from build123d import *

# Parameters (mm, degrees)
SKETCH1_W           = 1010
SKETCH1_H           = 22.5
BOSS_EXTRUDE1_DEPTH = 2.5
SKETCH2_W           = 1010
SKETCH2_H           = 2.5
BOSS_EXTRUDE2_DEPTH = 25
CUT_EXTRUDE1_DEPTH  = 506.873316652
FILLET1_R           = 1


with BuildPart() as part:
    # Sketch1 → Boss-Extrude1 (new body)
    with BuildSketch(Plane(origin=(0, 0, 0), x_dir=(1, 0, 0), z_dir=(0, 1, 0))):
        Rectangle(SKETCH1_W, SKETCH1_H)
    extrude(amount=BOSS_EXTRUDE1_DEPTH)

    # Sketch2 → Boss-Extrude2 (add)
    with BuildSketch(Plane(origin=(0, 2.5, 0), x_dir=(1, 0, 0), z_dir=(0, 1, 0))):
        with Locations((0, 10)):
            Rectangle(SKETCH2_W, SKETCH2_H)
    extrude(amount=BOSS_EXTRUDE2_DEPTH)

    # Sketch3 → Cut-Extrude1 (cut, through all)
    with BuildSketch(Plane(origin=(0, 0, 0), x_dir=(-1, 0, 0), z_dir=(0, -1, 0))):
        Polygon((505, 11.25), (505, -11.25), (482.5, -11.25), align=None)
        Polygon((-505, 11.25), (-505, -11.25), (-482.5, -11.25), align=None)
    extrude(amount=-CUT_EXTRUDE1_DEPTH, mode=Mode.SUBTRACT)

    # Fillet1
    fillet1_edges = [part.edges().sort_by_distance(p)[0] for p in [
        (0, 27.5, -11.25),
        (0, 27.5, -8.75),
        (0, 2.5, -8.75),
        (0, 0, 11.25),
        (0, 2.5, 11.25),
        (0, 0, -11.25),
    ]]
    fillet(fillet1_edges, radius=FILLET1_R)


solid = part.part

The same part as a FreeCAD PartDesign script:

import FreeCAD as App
import Part
import Sketcher
from FreeCAD import Vector


def edges_at(feature, points):
    """Names of the edges that pass closest to the given points."""
    edges = feature.Shape.Edges
    near = lambda p: min(range(len(edges)), key=lambda i: edges[i].distToShape(Part.Vertex(*p))[0])
    return sorted({f"Edge{near(p) + 1}" for p in points})

doc = App.newDocument("Part")
body = doc.addObject("PartDesign::Body", "Body")

sketch1 = doc.addObject("Sketcher::SketchObject", "Sketch")
body.addObject(sketch1)
sketch1.AttachmentSupport = (doc.XZ_Plane, [""])
sketch1.MapMode = "FlatFace"
sketch1.addGeometry([
    Part.LineSegment(Vector(-505, -11, 0), Vector(-505, 11, 0)),
    Part.LineSegment(Vector(-505, 11, 0), Vector(505, 11, 0)),
    Part.LineSegment(Vector(505, 11, 0), Vector(505, -11, 0)),
    Part.LineSegment(Vector(505, -11, 0), Vector(-505, -11, 0)),
], False)
sketch1.addConstraint([
    Sketcher.Constraint("Coincident", 0, 2, 1, 1),
    Sketcher.Constraint("Coincident", 1, 2, 2, 1),
    Sketcher.Constraint("Coincident", 2, 2, 3, 1),
    Sketcher.Constraint("Coincident", 3, 2, 0, 1),
    Sketcher.Constraint("Vertical", 0),
    Sketcher.Constraint("Horizontal", 1),
    Sketcher.Constraint("Vertical", 2),
    Sketcher.Constraint("Horizontal", 3),
    Sketcher.Constraint("Symmetric", 0, 2, 2, 2, -1, 1),
    Sketcher.Constraint("DistanceX", 1, 1, 1, 2, 1010.0),
    Sketcher.Constraint("DistanceY", 0, 1, 0, 2, 22.5),
])
pad1 = doc.addObject("PartDesign::Pad", "Pad")
body.addObject(pad1)
pad1.Profile = sketch1
pad1.Length = 2.5
pad1.Reversed = True

sketch2 = doc.addObject("Sketcher::SketchObject", "Sketch001")
body.addObject(sketch2)
sketch2.AttachmentSupport = (doc.XZ_Plane, [""])
sketch2.MapMode = "FlatFace"
sketch2.AttachmentOffset = App.Placement(Vector(0, 0, -2.5), App.Rotation())
sketch2.addGeometry([
    Part.LineSegment(Vector(-505, -11.2, 0), Vector(-505, -8.8, 0)),
    Part.LineSegment(Vector(-505, -8.8, 0), Vector(505, -8.8, 0)),
    Part.LineSegment(Vector(505, -8.8, 0), Vector(505, -11.2, 0)),
    Part.LineSegment(Vector(505, -11.2, 0), Vector(-505, -11.2, 0)),
], False)
sketch2.addConstraint([
    Sketcher.Constraint("Coincident", 0, 2, 1, 1),
    Sketcher.Constraint("Coincident", 1, 2, 2, 1),
    Sketcher.Constraint("Coincident", 2, 2, 3, 1),
    Sketcher.Constraint("Coincident", 3, 2, 0, 1),
    Sketcher.Constraint("Vertical", 0),
    Sketcher.Constraint("Horizontal", 1),
    Sketcher.Constraint("Vertical", 2),
    Sketcher.Constraint("Horizontal", 3),
    Sketcher.Constraint("DistanceX", 1, 1, 1, 2, 1010.0),
    Sketcher.Constraint("DistanceY", 0, 1, 0, 2, 2.5),
    Sketcher.Constraint("DistanceX", 0, 2, -1, 1, 505.0),
    Sketcher.Constraint("DistanceY", 0, 2, -1, 1, 8.75),
])
pad2 = doc.addObject("PartDesign::Pad", "Pad001")
body.addObject(pad2)
pad2.Profile = sketch2
pad2.Length = 25
pad2.Reversed = True

sketch3 = doc.addObject("Sketcher::SketchObject", "Sketch002")
body.addObject(sketch3)
sketch3.AttachmentSupport = (doc.XZ_Plane, [""])
sketch3.MapMode = "FlatFace"
sketch3.addGeometry([
    Part.LineSegment(Vector(-505, 11, 0), Vector(-505, -11, 0)),
    Part.LineSegment(Vector(-505, -11, 0), Vector(-482, 11, 0)),
    Part.LineSegment(Vector(-482, 11, 0), Vector(-505, 11, 0)),
    Part.LineSegment(Vector(505, -11, 0), Vector(505, 11, 0)),
    Part.LineSegment(Vector(505, 11, 0), Vector(482, 11, 0)),
    Part.LineSegment(Vector(482, 11, 0), Vector(505, -11, 0)),
], False)
sketch3.addConstraint([
    Sketcher.Constraint("Coincident", 0, 2, 1, 1),
    Sketcher.Constraint("Coincident", 1, 2, 2, 1),
    Sketcher.Constraint("Coincident", 2, 2, 0, 1),
    Sketcher.Constraint("Coincident", 3, 2, 4, 1),
    Sketcher.Constraint("Coincident", 4, 2, 5, 1),
    Sketcher.Constraint("Coincident", 5, 2, 3, 1),
    Sketcher.Constraint("Vertical", 0),
    Sketcher.Constraint("Horizontal", 2),
    Sketcher.Constraint("Vertical", 3),
    Sketcher.Constraint("Horizontal", 4),
    Sketcher.Constraint("Symmetric", 0, 2, 3, 2, -1, 1),
    Sketcher.Constraint("Symmetric", 1, 2, 4, 2, -2),
    Sketcher.Constraint("Perpendicular", 1, 5),
    Sketcher.Constraint("Horizontal", 0, 2, 5, 2),
    Sketcher.Constraint("DistanceX", 2, 2, 2, 1, 22.5),
    Sketcher.Constraint("DistanceX", 0, 2, -1, 1, 505.0),
])
pocket1 = doc.addObject("PartDesign::Pocket", "Pocket")
body.addObject(pocket1)
pocket1.Profile = sketch3
pocket1.Type = "ThroughAll"
doc.recompute()

fillet = doc.addObject("PartDesign::Fillet", "Fillet")
body.addObject(fillet)
fillet.Base = (pocket1, edges_at(pocket1, [
    (0, 27.5, -11.25),
    (0, 27.5, -8.75),
    (0, 2.5, -8.75),
    (0, 0, 11.25),
    (0, 2.5, 11.25),
    (0, 0, -11.25),
]))
fillet.Radius = 1

doc.recompute()
